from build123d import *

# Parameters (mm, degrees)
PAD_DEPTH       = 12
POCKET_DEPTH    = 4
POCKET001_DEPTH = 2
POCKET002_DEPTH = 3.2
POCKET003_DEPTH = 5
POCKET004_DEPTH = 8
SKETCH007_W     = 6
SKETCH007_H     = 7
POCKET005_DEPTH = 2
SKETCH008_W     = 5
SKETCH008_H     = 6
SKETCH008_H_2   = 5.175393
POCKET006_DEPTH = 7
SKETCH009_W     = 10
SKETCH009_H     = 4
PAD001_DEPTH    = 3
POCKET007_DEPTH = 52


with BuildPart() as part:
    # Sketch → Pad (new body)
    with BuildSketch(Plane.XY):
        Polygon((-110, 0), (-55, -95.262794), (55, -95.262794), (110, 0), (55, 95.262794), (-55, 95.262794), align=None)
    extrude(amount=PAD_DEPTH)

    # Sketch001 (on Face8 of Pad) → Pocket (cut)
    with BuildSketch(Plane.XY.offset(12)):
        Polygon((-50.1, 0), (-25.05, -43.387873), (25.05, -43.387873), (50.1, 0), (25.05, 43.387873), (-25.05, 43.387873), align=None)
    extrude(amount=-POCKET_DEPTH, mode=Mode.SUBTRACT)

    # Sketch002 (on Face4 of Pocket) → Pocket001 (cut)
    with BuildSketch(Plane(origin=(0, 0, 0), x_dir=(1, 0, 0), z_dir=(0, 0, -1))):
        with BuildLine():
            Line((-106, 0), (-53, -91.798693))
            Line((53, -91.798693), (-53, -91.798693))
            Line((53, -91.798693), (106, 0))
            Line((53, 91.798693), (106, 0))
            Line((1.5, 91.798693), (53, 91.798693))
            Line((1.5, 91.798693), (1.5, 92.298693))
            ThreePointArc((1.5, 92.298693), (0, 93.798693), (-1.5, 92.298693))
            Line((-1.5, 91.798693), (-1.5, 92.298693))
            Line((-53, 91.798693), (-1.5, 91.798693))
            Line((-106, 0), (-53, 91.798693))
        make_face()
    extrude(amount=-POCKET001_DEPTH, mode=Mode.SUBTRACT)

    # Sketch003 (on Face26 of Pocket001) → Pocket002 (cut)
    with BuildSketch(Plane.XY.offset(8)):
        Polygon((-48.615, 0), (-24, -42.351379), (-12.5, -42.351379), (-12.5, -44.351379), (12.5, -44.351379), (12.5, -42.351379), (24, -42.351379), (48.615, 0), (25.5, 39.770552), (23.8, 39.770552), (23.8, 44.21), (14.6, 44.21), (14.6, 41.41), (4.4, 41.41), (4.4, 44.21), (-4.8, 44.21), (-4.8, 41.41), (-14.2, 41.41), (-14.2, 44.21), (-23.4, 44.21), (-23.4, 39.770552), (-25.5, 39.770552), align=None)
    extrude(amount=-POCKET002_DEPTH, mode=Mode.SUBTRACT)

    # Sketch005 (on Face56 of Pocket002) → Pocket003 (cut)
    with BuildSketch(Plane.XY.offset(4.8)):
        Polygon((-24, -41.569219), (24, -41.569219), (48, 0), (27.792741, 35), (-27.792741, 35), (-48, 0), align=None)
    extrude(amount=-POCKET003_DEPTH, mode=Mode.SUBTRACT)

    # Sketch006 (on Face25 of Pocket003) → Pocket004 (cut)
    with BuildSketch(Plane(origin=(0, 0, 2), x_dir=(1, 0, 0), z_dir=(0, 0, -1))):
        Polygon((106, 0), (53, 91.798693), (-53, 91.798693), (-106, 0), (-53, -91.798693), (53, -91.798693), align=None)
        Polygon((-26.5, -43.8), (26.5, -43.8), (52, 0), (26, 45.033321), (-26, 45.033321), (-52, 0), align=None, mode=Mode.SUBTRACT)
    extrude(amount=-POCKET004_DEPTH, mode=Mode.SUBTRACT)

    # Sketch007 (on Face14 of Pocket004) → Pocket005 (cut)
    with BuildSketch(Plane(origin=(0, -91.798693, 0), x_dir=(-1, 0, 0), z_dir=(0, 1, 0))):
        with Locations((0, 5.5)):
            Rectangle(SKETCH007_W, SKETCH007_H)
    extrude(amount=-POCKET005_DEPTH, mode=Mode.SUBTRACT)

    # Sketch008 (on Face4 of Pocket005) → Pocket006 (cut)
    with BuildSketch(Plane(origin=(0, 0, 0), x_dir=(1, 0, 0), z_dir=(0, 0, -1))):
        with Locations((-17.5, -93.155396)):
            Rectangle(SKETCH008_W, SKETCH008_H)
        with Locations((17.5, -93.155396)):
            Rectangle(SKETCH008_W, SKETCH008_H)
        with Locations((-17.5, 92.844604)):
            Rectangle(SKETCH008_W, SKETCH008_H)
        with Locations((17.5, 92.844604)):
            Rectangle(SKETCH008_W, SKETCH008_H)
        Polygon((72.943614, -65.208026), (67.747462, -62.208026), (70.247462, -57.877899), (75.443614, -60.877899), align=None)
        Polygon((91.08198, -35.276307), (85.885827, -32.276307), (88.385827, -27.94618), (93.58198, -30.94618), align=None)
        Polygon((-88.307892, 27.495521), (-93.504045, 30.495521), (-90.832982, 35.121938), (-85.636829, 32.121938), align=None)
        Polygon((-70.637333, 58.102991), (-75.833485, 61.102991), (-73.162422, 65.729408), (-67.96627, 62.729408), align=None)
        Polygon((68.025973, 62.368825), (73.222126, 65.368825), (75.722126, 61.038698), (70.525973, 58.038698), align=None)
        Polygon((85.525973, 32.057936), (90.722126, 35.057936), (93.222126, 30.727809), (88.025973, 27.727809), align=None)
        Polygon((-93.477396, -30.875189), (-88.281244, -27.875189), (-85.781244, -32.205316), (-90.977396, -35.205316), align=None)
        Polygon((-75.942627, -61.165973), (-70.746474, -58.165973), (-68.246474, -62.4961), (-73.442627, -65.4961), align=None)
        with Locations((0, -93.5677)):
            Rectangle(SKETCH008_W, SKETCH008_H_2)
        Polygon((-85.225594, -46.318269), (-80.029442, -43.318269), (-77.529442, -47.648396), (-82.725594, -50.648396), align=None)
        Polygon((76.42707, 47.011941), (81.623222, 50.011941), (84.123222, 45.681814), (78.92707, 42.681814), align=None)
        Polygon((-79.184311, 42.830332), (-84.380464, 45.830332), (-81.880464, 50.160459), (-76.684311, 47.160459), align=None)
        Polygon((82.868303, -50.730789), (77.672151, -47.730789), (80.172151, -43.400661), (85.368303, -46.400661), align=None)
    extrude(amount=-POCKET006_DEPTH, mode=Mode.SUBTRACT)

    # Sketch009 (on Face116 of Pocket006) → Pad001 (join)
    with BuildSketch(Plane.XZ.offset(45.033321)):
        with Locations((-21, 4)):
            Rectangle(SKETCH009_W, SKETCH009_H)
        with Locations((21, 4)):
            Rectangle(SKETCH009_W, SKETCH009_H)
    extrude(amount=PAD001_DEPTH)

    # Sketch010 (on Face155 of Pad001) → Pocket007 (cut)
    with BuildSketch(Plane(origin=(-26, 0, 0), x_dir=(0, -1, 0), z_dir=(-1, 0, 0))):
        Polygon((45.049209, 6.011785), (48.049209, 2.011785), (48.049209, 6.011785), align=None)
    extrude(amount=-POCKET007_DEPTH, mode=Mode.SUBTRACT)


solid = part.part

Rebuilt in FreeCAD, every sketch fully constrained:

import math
import FreeCAD as App
import Part
import Sketcher
from FreeCAD import Vector
Q = App.Units.Quantity


def add_polygon(sketch, points):
    """Adds a closed chain of lines whose ends are joined by coincident constraints."""
    first, n = sketch.GeometryCount, len(points)
    for a, b in zip(points, points[1:] + points[:1]):
        sketch.addGeometry(Part.LineSegment(App.Vector(*a, 0), App.Vector(*b, 0)), False)
    for i in range(n):
        sketch.addConstraint(Sketcher.Constraint("Coincident", first + i, 2, first + (i + 1) % n, 1))

doc = App.newDocument("Part")
params = doc.addObject("Spreadsheet::Sheet", "Params")
for row, (alias, value) in enumerate([
    ("sketch1_width", "110 mm"),
    ("sketch1_length", "110 mm"),
    ("pad1_length", "12 mm"),
    ("sketch2_width", "50.1 mm"),
    ("sketch2_length", "50.1 mm"),
    ("pocket1_length", "4 mm"),
    ("sketch3_radius", "1.5 mm"),
    ("sketch3_width", "106 mm"),
    ("sketch3_length", "106 mm"),
    ("sketch3_height", "0.5 mm"),
    ("pocket2_length", "2 mm"),
    ("sketch4_width", "25 mm"),
    ("sketch4_height", "2 mm"),
    ("sketch4_length", "46 mm"),
    ("sketch4_width2", "11.5 mm"),
    ("sketch4_width3", "1.7 mm"),
    ("pocket3_length", "3.2 mm"),
    ("sketch5_width", "48 mm"),
    ("sketch5_length", "48 mm"),
    ("pocket4_length", "5 mm"),
    ("sketch6_width", "106 mm"),
    ("sketch6_width2", "53 mm"),
    ("sketch6_width3", "52 mm"),
    ("sketch6_length", "106 mm"),
    ("sketch6_length2", "52 mm"),
    ("pocket5_length", "8 mm"),
    ("sketch7_width", "6 mm"),
    ("sketch7_height", "7 mm"),
    ("pocket6_length", "2 mm"),
    ("sketch8_width", "5 mm"),
    ("sketch8_height", "6 mm"),
    ("sketch8_length", "6 mm"),
    ("sketch8_length2", "5 mm"),
    ("pocket7_length", "7 mm"),
    ("sketch9_width", "10 mm"),
    ("sketch9_height", "4 mm"),
    ("pad2_length", "3 mm"),
    ("sketch10_width", "3 mm"),
    ("sketch10_height", "4 mm"),
    ("pocket8_length", "52 mm"),
], start=1):
    params.set(f"A{row}", alias)
    params.set(f"B{row}", "=" + value)
    params.setAlias(f"B{row}", alias)

body = doc.addObject("PartDesign::Body", "Body")

sketch1 = body.newObject("Sketcher::SketchObject", "Sketch")
sketch1.AttachmentSupport = (doc.getObject("XY_Plane"), [""])
sketch1.MapMode = "FlatFace"
add_polygon(sketch1, [(-110, 0), (-55, -95), (55, -95), (110, 0), (55, 95), (-55, 95)])
sketch1.addConstraint([
    Sketcher.Constraint("Horizontal", 1),
    Sketcher.Constraint("Horizontal", 4),
    Sketcher.Constraint("Symmetric", 0, 2, 3, 2, -1, 1),
    Sketcher.Constraint("Symmetric", 2, 2, 5, 2, -1, 1),
    Sketcher.Constraint("PointOnObject", 2, 2, -1),
    Sketcher.Constraint("Parallel", 2, 5),
    Sketcher.Constraint("Vertical", 1, 2, 3, 2),
    Sketcher.Constraint("DistanceX", 1, 1, 1, 2, Q("110 mm")),
    Sketcher.Constraint("Angle", 0, Q("-60 deg")),
    Sketcher.Constraint("Distance", 0, Q("110 mm")),
])
sketch1.setExpression("Constraints[13]", "Params.sketch1_width")
sketch1.setExpression("Constraints[15]", "Params.sketch1_length")
pad1 = body.newObject("PartDesign::Pad", "Pad")
pad1.Profile = sketch1
pad1.setExpression("Length", "Params.pad1_length")

sketch2 = body.newObject("Sketcher::SketchObject", "Sketch001")
sketch2.AttachmentSupport = (doc.getObject("XY_Plane"), [""])
sketch2.MapMode = "FlatFace"
sketch2.AttachmentOffset = App.Placement(Vector(0, 0, 12), App.Rotation())
add_polygon(sketch2, [(-50, 0), (-25, -43), (25, -43), (50, 0), (25, 43), (-25, 43)])
sketch2.addConstraint([
    Sketcher.Constraint("Horizontal", 1),
    Sketcher.Constraint("Horizontal", 4),
    Sketcher.Constraint("Symmetric", 0, 2, 3, 2, -1, 1),
    Sketcher.Constraint("Symmetric", 2, 2, 5, 2, -1, 1),
    Sketcher.Constraint("PointOnObject", 2, 2, -1),
    Sketcher.Constraint("Parallel", 2, 5),
    Sketcher.Constraint("Vertical", 1, 2, 3, 2),
    Sketcher.Constraint("Angle", 0, Q("-60 deg")),
    Sketcher.Constraint("DistanceX", 1, 1, 1, 2, Q("50.1 mm")),
    Sketcher.Constraint("Distance", 0, Q("50.1 mm")),
])
sketch2.setExpression("Constraints[14]", "Params.sketch2_width")
sketch2.setExpression("Constraints[15]", "Params.sketch2_length")
pocket1 = body.newObject("PartDesign::Pocket", "Pocket")
pocket1.Profile = sketch2
pocket1.setExpression("Length", "Params.pocket1_length")

sketch3 = body.newObject("Sketcher::SketchObject", "Sketch002")
sketch3.AttachmentSupport = (doc.getObject("XY_Plane"), [""])
sketch3.MapMode = "FlatFace"
sketch3.addGeometry([
    Part.LineSegment(Vector(-106, 0, 0), Vector(-53, 91.8, 0)),
    Part.LineSegment(Vector(-53, 91.8, 0), Vector(53, 91.8, 0)),
    Part.LineSegment(Vector(53, 91.8, 0), Vector(106, 0, 0)),
    Part.LineSegment(Vector(106, 0, 0), Vector(53, -91.8, 0)),
    Part.LineSegment(Vector(53, -91.8, 0), Vector(1.5, -91.8, 0)),
    Part.LineSegment(Vector(1.5, -91.8, 0), Vector(1.5, -92.3, 0)),
    Part.ArcOfCircle(Part.Circle(Vector(0, -92.3, 0), Vector(0, 0, 1), 1.5), math.radians(180), math.radians(360)),
    Part.LineSegment(Vector(-1.5, -92.3, 0), Vector(-1.5, -91.8, 0)),
    Part.LineSegment(Vector(-1.5, -91.8, 0), Vector(-53, -91.8, 0)),
    Part.LineSegment(Vector(-53, -91.8, 0), Vector(-106, 0, 0)),
], False)
sketch3.addConstraint([
    Sketcher.Constraint("Coincident", 0, 2, 1, 1),
    Sketcher.Constraint("Coincident", 1, 2, 2, 1),
    Sketcher.Constraint("Coincident", 2, 2, 3, 1),
    Sketcher.Constraint("Coincident", 3, 2, 4, 1),
    Sketcher.Constraint("Coincident", 4, 2, 5, 1),
    Sketcher.Constraint("Tangent", 5, 2, 6, 2),
    Sketcher.Constraint("Tangent", 6, 1, 7, 1),
    Sketcher.Constraint("Coincident", 7, 2, 8, 1),
    Sketcher.Constraint("Coincident", 8, 2, 9, 1),
    Sketcher.Constraint("Coincident", 9, 2, 0, 1),
    Sketcher.Constraint("Horizontal", 1),
    Sketcher.Constraint("Horizontal", 4),
    Sketcher.Constraint("Vertical", 5),
    Sketcher.Constraint("Vertical", 7),
    Sketcher.Constraint("Horizontal", 8),
    Sketcher.Constraint("Symmetric", 0, 2, 3, 2, -1, 1),
    Sketcher.Constraint("Symmetric", 1, 2, 8, 2, -1, 1),
    Sketcher.Constraint("Symmetric", 2, 2, 9, 2, -1, 1),
    Sketcher.Constraint("PointOnObject", 6, 3, -2),
    Sketcher.Constraint("PointOnObject", 2, 2, -1),
    Sketcher.Constraint("Vertical", 1, 2, 3, 2),
    Sketcher.Constraint("Radius", 6, Q("1.5 mm")),
    Sketcher.Constraint("DistanceX", 1, 1, 1, 2, Q("106 mm")),
    Sketcher.Constraint("Angle", 0, Q("60 deg")),
    Sketcher.Constraint("Distance", 0, Q("106 mm")),
    Sketcher.Constraint("DistanceY", 5, 2, 5, 1, Q("0.5 mm")),
])
sketch3.setExpression("Constraints[21]", "Params.sketch3_radius")
sketch3.setExpression("Constraints[22]", "Params.sketch3_width")
sketch3.setExpression("Constraints[24]", "Params.sketch3_length")
sketch3.setExpression("Constraints[25]", "Params.sketch3_height")
pocket2 = body.newObject("PartDesign::Pocket", "Pocket001")
pocket2.Profile = sketch3
pocket2.setExpression("Length", "Params.pocket2_length")
pocket2.Reversed = True

sketch4 = body.newObject("Sketcher::SketchObject", "Sketch003")
sketch4.AttachmentSupport = (doc.getObject("XY_Plane"), [""])
sketch4.MapMode = "FlatFace"
sketch4.AttachmentOffset = App.Placement(Vector(0, 0, 8), App.Rotation())
add_polygon(sketch4, [(-48.6, 0), (-24, -42.4), (-12.5, -42.4), (-12.5, -44.4), (12.5, -44.4), (12.5, -42.4), (24, -42.4), (48.6, 0), (25.5, 39.8), (23.8, 39.8), (23.8, 44.2), (14.6, 44.2), (14.6, 41.4), (4.4, 41.4), (4.4, 44.2), (-4.8, 44.2), (-4.8, 41.4), (-14.2, 41.4), (-14.2, 44.2), (-23.4, 44.2), (-23.4, 39.8), (-25.5, 39.8)])
sketch4.addConstraint([
    Sketcher.Constraint("Horizontal", 1),
    Sketcher.Constraint("Vertical", 2),
    Sketcher.Constraint("Horizontal", 3),
    Sketcher.Constraint("Vertical", 4),
    Sketcher.Constraint("Horizontal", 5),
    Sketcher.Constraint("Horizontal", 8),
    Sketcher.Constraint("Vertical", 9),
    Sketcher.Constraint("Horizontal", 10),
    Sketcher.Constraint("Vertical", 11),
    Sketcher.Constraint("Horizontal", 12),
    Sketcher.Constraint("Vertical", 13),
    Sketcher.Constraint("Horizontal", 14),
    Sketcher.Constraint("Vertical", 15),
    Sketcher.Constraint("Horizontal", 16),
    Sketcher.Constraint("Vertical", 17),
    Sketcher.Constraint("Horizontal", 18),
    Sketcher.Constraint("Vertical", 19),
    Sketcher.Constraint("Horizontal", 20),
    Sketcher.Constraint("Symmetric", 6, 2, 21, 2, -1, 1),
    Sketcher.Constraint("Symmetric", 1, 2, 4, 2, -2),
    Sketcher.Constraint("Symmetric", 7, 2, 20, 2, -2),
    Sketcher.Constraint("PointOnObject", 6, 2, -1),
    Sketcher.Constraint("Parallel", 0, 7),
    Sketcher.Constraint("Parallel", 6, 21),
    Sketcher.Constraint("Horizontal", 10, 2, 13, 2),
    Sketcher.Constraint("Horizontal", 12, 2, 15, 2),
    Sketcher.Constraint("Horizontal", 14, 2, 17, 2),
    Sketcher.Constraint("Equal", 10, 14),
    Sketcher.Constraint("Equal", 14, 18),
    Sketcher.Constraint("DistanceX", 3, 1, 3, 2, Q("25 mm")),
    Sketcher.Constraint("DistanceY", 2, 2, 2, 1, Q("2 mm")),
    Sketcher.Constraint("Distance", 7, Q("46 mm")),
    Sketcher.Constraint("DistanceX", 1, 1, 1, 2, Q("11.5 mm")),
    Sketcher.Constraint("DistanceX", 8, 2, 8, 1, Q("1.7 mm")),
    Sketcher.Constraint("DistanceX", 10, 2, 10, 1, Q("9.2 mm")),
    Sketcher.Constraint("DistanceX", 12, 2, 12, 1, Q("10.2 mm")),
    Sketcher.Constraint("DistanceX", 16, 2, 16, 1, Q("9.4 mm")),
    Sketcher.Constraint("DistanceX", 20, 2, 20, 1, Q("2.1 mm")),
    Sketcher.Constraint("DistanceY", 11, 2, 11, 1, Q("2.8 mm")),
    Sketcher.Constraint("DistanceY", -1, 1, 9, 2, Q("44.21 mm")),
    Sketcher.Constraint("DistanceX", -1, 1, 6, 2, Q("48.615 mm")),
])
sketch4.setExpression("Constraints[51]", "Params.sketch4_width")
sketch4.setExpression("Constraints[52]", "Params.sketch4_height")
sketch4.setExpression("Constraints[53]", "Params.sketch4_length")
sketch4.setExpression("Constraints[54]", "Params.sketch4_width2")
sketch4.setExpression("Constraints[55]", "Params.sketch4_width3")
pocket3 = body.newObject("PartDesign::Pocket", "Pocket002")
pocket3.Profile = sketch4
pocket3.setExpression("Length", "Params.pocket3_length")

sketch5 = body.newObject("Sketcher::SketchObject", "Sketch004")
sketch5.AttachmentSupport = (doc.getObject("XY_Plane"), [""])
sketch5.MapMode = "FlatFace"
sketch5.AttachmentOffset = App.Placement(Vector(0, 0, 4.8), App.Rotation())
add_polygon(sketch5, [(-24, -42), (24, -42), (48, 0), (28, 35), (-28, 35), (-48, 0)])
sketch5.addConstraint([
    Sketcher.Constraint("Horizontal", 0),
    Sketcher.Constraint("Horizontal", 3),
    Sketcher.Constraint("Symmetric", 1, 2, 4, 2, -1, 1),
    Sketcher.Constraint("PointOnObject", 1, 2, -1),
    Sketcher.Constraint("Parallel", 1, 4),
    Sketcher.Constraint("Parallel", 2, 5),
    Sketcher.Constraint("Equal", 2, 4),
    Sketcher.Constraint("DistanceX", 0, 1, 0, 2, Q("48 mm")),
    Sketcher.Constraint("Angle", 1, Q("60 deg")),
    Sketcher.Constraint("Distance", 1, Q("48 mm")),
    Sketcher.Constraint("DistanceY", -1, 1, 2, 2, Q("35 mm")),
])
sketch5.setExpression("Constraints[13]", "Params.sketch5_width")
sketch5.setExpression("Constraints[15]", "Params.sketch5_length")
pocket4 = body.newObject("PartDesign::Pocket", "Pocket003")
pocket4.Profile = sketch5
pocket4.setExpression("Length", "Params.pocket4_length")

sketch6 = body.newObject("Sketcher::SketchObject", "Sketch005")
sketch6.AttachmentSupport = (doc.getObject("XY_Plane"), [""])
sketch6.MapMode = "FlatFace"
sketch6.AttachmentOffset = App.Placement(Vector(0, 0, 2), App.Rotation())
add_polygon(sketch6, [(106, 0), (53, -92), (-53, -92), (-106, 0), (-53, 92), (53, 92)])
add_polygon(sketch6, [(26, 44), (-26, 44), (-52, 0), (-26, -45), (26, -45), (52, 0)])
sketch6.addConstraint([
    Sketcher.Constraint("Horizontal", 1),
    Sketcher.Constraint("Horizontal", 4),
    Sketcher.Constraint("Horizontal", 6),
    Sketcher.Constraint("Horizontal", 9),
    Sketcher.Constraint("Symmetric", 0, 2, 3, 2, -1, 1),
    Sketcher.Constraint("Symmetric", 2, 2, 5, 2, -1, 1),
    Sketcher.Constraint("Symmetric", 7, 2, 10, 2, -1, 1),
    Sketcher.Constraint("PointOnObject", 2, 2, -1),
    Sketcher.Constraint("PointOnObject", 7, 2, -1),
    Sketcher.Constraint("Parallel", 2, 5),
    Sketcher.Constraint("Parallel", 5, 8),
    Sketcher.Constraint("Parallel", 3, 10),
    Sketcher.Constraint("Vertical", 1, 2, 3, 2),
    Sketcher.Constraint("Equal", 7, 11),
    Sketcher.Constraint("DistanceX", 1, 2, 1, 1, Q("106 mm")),
    Sketcher.Constraint("DistanceX", 6, 2, 6, 1, Q("53 mm")),
    Sketcher.Constraint("DistanceX", 9, 1, 9, 2, Q("52 mm")),
    Sketcher.Constraint("Angle", 0, Q("-120 deg")),
    Sketcher.Constraint("Distance", 0, Q("106 mm")),
    Sketcher.Constraint("Distance", 8, Q("52 mm")),
    Sketcher.Constraint("DistanceY", -1, 1, 6, 2, Q("43.8 mm")),
])
sketch6.setExpression("Constraints[26]", "Params.sketch6_width")
sketch6.setExpression("Constraints[27]", "Params.sketch6_width2")
sketch6.setExpression("Constraints[28]", "Params.sketch6_width3")
sketch6.setExpression("Constraints[30]", "Params.sketch6_length")
sketch6.setExpression("Constraints[31]", "Params.sketch6_length2")
pocket5 = body.newObject("PartDesign::Pocket", "Pocket004")
pocket5.Profile = sketch6
pocket5.setExpression("Length", "Params.pocket5_length")
pocket5.Reversed = True

sketch7 = body.newObject("Sketcher::SketchObject", "Sketch006")
sketch7.AttachmentSupport = (doc.getObject("XZ_Plane"), [""])
sketch7.MapMode = "FlatFace"
sketch7.AttachmentOffset = App.Placement(Vector(0, 0, 91.798693), App.Rotation())
add_polygon(sketch7, [(3, 9), (3, 2), (-3, 2), (-3, 9)])
sketch7.addConstraint([
    Sketcher.Constraint("Vertical", 0),
    Sketcher.Constraint("Horizontal", 1),
    Sketcher.Constraint("Vertical", 2),
    Sketcher.Constraint("Horizontal", 3),
    Sketcher.Constraint("DistanceX", 1, 2, 1, 1, Q("6 mm")),
    Sketcher.Constraint("DistanceY", 0, 2, 0, 1, Q("7 mm")),
    Sketcher.Constraint("DistanceX", -1, 1, 0, 2, Q("3 mm")),
    Sketcher.Constraint("DistanceY", -1, 1, 0, 2, Q("2 mm")),
])
sketch7.setExpression("Constraints[8]", "Params.sketch7_width")
sketch7.setExpression("Constraints[9]", "Params.sketch7_height")
pocket6 = body.newObject("PartDesign::Pocket", "Pocket005")
pocket6.Profile = sketch7
pocket6.setExpression("Length", "Params.pocket6_length")
pocket6.Reversed = True

sketch8 = body.newObject("Sketcher::SketchObject", "Sketch007")
sketch8.AttachmentSupport = (doc.getObject("XY_Plane"), [""])
sketch8.MapMode = "FlatFace"
add_polygon(sketch8, [(-20, 90.2), (-20, 96.2), (-15, 96.2), (-15, 90.2)])
add_polygon(sketch8, [(15, 90.2), (15, 96.2), (20, 96.2), (20, 90.2)])
add_polygon(sketch8, [(-20, -95.8), (-20, -89.8), (-15, -89.8), (-15, -95.8)])
add_polygon(sketch8, [(15, -95.8), (15, -89.8), (20, -89.8), (20, -95.8)])
add_polygon(sketch8, [(67.7, 62.2), (72.9, 65.2), (75.4, 60.9), (70.2, 57.9)])
add_polygon(sketch8, [(85.9, 32.3), (91.1, 35.3), (93.6, 30.9), (88.4, 27.9)])
add_polygon(sketch8, [(-93.5, -30.5), (-88.3, -27.5), (-85.6, -32.1), (-90.8, -35.1)])
add_polygon(sketch8, [(-75.8, -61.1), (-70.6, -58.1), (-68, -62.7), (-73.2, -65.7)])
add_polygon(sketch8, [(73.2, -65.4), (68, -62.4), (70.5, -58), (75.7, -61)])
add_polygon(sketch8, [(90.7, -35.1), (85.5, -32.1), (88, -27.7), (93.2, -30.7)])
add_polygon(sketch8, [(-88.3, 27.9), (-93.5, 30.9), (-91, 35.2), (-85.8, 32.2)])
add_polygon(sketch8, [(-70.7, 58.2), (-75.9, 61.2), (-73.4, 65.5), (-68.2, 62.5)])
add_polygon(sketch8, [(-2.5, 91), (-2.5, 96.2), (2.5, 96.2), (2.5, 91)])
add_polygon(sketch8, [(-80, 43.3), (-85.2, 46.3), (-82.7, 50.6), (-77.5, 47.6)])
add_polygon(sketch8, [(81.6, -50), (76.4, -47), (78.9, -42.7), (84.1, -45.7)])
add_polygon(sketch8, [(-84.4, -45.8), (-79.2, -42.8), (-76.7, -47.2), (-81.9, -50.2)])
add_polygon(sketch8, [(77.7, 47.7), (82.9, 50.7), (85.4, 46.4), (80.2, 43.4)])
sketch8.addConstraint([
    Sketcher.Constraint("Vertical", 0),
    Sketcher.Constraint("Horizontal", 1),
    Sketcher.Constraint("Vertical", 2),
    Sketcher.Constraint("Horizontal", 3),
    Sketcher.Constraint("Vertical", 4),
    Sketcher.Constraint("Horizontal", 5),
    Sketcher.Constraint("Vertical", 6),
    Sketcher.Constraint("Horizontal", 7),
    Sketcher.Constraint("Vertical", 8),
    Sketcher.Constraint("Horizontal", 9),
    Sketcher.Constraint("Vertical", 10),
    Sketcher.Constraint("Horizontal", 11),
    Sketcher.Constraint("Vertical", 12),
    Sketcher.Constraint("Horizontal", 13),
    Sketcher.Constraint("Vertical", 14),
    Sketcher.Constraint("Horizontal", 15),
    Sketcher.Constraint("Vertical", 48),
    Sketcher.Constraint("Horizontal", 49),
    Sketcher.Constraint("Vertical", 50),
    Sketcher.Constraint("Horizontal", 51),
    Sketcher.Constraint("Symmetric", 1, 2, 4, 2, -2),
    Sketcher.Constraint("Symmetric", 3, 2, 6, 2, -2),
    Sketcher.Constraint("Symmetric", 9, 2, 12, 2, -2),
    Sketcher.Constraint("Symmetric", 11, 2, 14, 2, -2),
    Sketcher.Constraint("Perpendicular", 16, 17),
    Sketcher.Constraint("Perpendicular", 17, 18),
    Sketcher.Constraint("Perpendicular", 18, 19),
    Sketcher.Constraint("Perpendicular", 19, 20),
    Sketcher.Constraint("Perpendicular", 20, 21),
    Sketcher.Constraint("Perpendicular", 21, 22),
    Sketcher.Constraint("Perpendicular", 22, 23),
    Sketcher.Constraint("Perpendicular", 23, 24),
    Sketcher.Constraint("Perpendicular", 24, 25),
    Sketcher.Constraint("Perpendicular", 25, 26),
    Sketcher.Constraint("Perpendicular", 26, 27),
    Sketcher.Constraint("Perpendicular", 27, 28),
    Sketcher.Constraint("Perpendicular", 28, 29),
    Sketcher.Constraint("Perpendicular", 29, 30),
    Sketcher.Constraint("Perpendicular", 30, 31),
    Sketcher.Constraint("Perpendicular", 32, 33),
    Sketcher.Constraint("Perpendicular", 33, 34),
    Sketcher.Constraint("Perpendicular", 34, 35),
    Sketcher.Constraint("Perpendicular", 35, 36),
    Sketcher.Constraint("Perpendicular", 36, 37),
    Sketcher.Constraint("Perpendicular", 37, 38),
    Sketcher.Constraint("Perpendicular", 38, 39),
    Sketcher.Constraint("Perpendicular", 39, 40),
    Sketcher.Constraint("Perpendicular", 40, 41),
    Sketcher.Constraint("Perpendicular", 41, 42),
    Sketcher.Constraint("Perpendicular", 42, 43),
    Sketcher.Constraint("Perpendicular", 43, 44),
    Sketcher.Constraint("Perpendicular", 44, 45),
    Sketcher.Constraint("Perpendicular", 45, 46),
    Sketcher.Constraint("Perpendicular", 46, 47),
    Sketcher.Constraint("Perpendicular", 47, 52),
    Sketcher.Constraint("Perpendicular", 52, 53),
    Sketcher.Constraint("Perpendicular", 53, 54),
    Sketcher.Constraint("Perpendicular", 54, 55),
    Sketcher.Constraint("Perpendicular", 55, 56),
    Sketcher.Constraint("Perpendicular", 56, 57),
    Sketcher.Constraint("Perpendicular", 57, 58),
    Sketcher.Constraint("Perpendicular", 58, 59),
    Sketcher.Constraint("Perpendicular", 31, 60),
    Sketcher.Constraint("Perpendicular", 60, 61),
    Sketcher.Constraint("Perpendicular", 61, 62),
    Sketcher.Constraint("Perpendicular", 62, 63),
    Sketcher.Constraint("Perpendicular", 63, 64),
    Sketcher.Constraint("Perpendicular", 64, 65),
    Sketcher.Constraint("Perpendicular", 65, 66),
    Sketcher.Constraint("Perpendicular", 66, 67),
    Sketcher.Constraint("Horizontal", 5, 2, 48, 2),
    Sketcher.Constraint("Vertical", 3, 2, 8, 2),
    Sketcher.Constraint("Vertical", 2, 2, 9, 2),
    Sketcher.Constraint("Equal", 15, 49),
    Sketcher.Constraint("Equal", 6, 8),
    Sketcher.Constraint("Equal", 18, 20),
    Sketcher.Constraint("Equal", 19, 21),
    Sketcher.Constraint("Equal", 22, 24),
    Sketcher.Constraint("Equal", 26, 28),
    Sketcher.Constraint("Equal", 27, 29),
    Sketcher.Constraint("Equal", 30, 32),
    Sketcher.Constraint("Equal", 23, 33),
    Sketcher.Constraint("Equal", 34, 36),
    Sketcher.Constraint("Equal", 35, 37),
    Sketcher.Constraint("Equal", 38, 40),
    Sketcher.Constraint("Equal", 39, 41),
    Sketcher.Constraint("Equal", 42, 44),
    Sketcher.Constraint("Equal", 43, 45),
    Sketcher.Constraint("Equal", 46, 52),
    Sketcher.Constraint("Equal", 47, 53),
    Sketcher.Constraint("Equal", 54, 56),
    Sketcher.Constraint("Equal", 55, 57),
    Sketcher.Constraint("Equal", 58, 60),
    Sketcher.Constraint("Equal", 59, 61),
    Sketcher.Constraint("Equal", 62, 64),
    Sketcher.Constraint("Equal", 63, 65),
    Sketcher.Constraint("DistanceX", 1, 1, 1, 2, Q("5 mm")),
    Sketcher.Constraint("DistanceY", 0, 1, 0, 2, Q("6 mm")),
    Sketcher.Constraint("Angle", 16, Q("30.000002 deg")),
    Sketcher.Constraint("Angle", 32, Q("150.000003 deg")),
    Sketcher.Constraint("Distance", 16, Q("6 mm")),
    Sketcher.Constraint("Distance", 17, Q("5 mm")),
    Sketcher.Constraint("DistanceX", 0, 2, -1, 1, Q("20 mm")),
    Sketcher.Constraint("DistanceX", 48, 2, -1, 1, Q("2.5 mm")),
    Sketcher.Constraint("DistanceY", -1, 1, 17, 2, Q("60.877899 mm")),
    Sketcher.Constraint("DistanceY", -1, 1, 45, 2, Q("65.4961 mm")),
    Sketcher.Constraint("DistanceY", 48, 1, 48, 2, Q("5.175393 mm")),
    Sketcher.Constraint("DistanceX", -1, 1, 18, 2, Q("70.247462 mm")),
    Sketcher.Constraint("DistanceX", -1, 1, 20, 2, Q("91.08198 mm")),
    Sketcher.Constraint("DistanceY", -1, 1, 21, 2, Q("30.94618 mm")),
    Sketcher.Constraint("DistanceX", 24, 2, -1, 1, Q("88.307892 mm")),
    Sketcher.Constraint("DistanceY", 24, 2, -1, 1, Q("27.495521 mm")),
    Sketcher.Constraint("DistanceX", 25, 2, -1, 1, Q("85.636829 mm")),
    Sketcher.Constraint("DistanceY", 28, 2, -1, 1, Q("58.102991 mm")),
    Sketcher.Constraint("DistanceX", 29, 2, -1, 1, Q("67.96627 mm")),
    Sketcher.Constraint("DistanceY", 37, 2, -1, 1, Q("27.727809 mm")),
    Sketcher.Constraint("DistanceY", -1, 1, 40, 2, Q("30.875189 mm")),
    Sketcher.Constraint("DistanceY", -1, 1, 52, 2, Q("46.318269 mm")),
    Sketcher.Constraint("DistanceX", -1, 1, 56, 2, Q("76.42707 mm")),
    Sketcher.Constraint("DistanceY", 56, 2, -1, 1, Q("47.011941 mm")),
    Sketcher.Constraint("DistanceX", 60, 2, -1, 1, Q("79.184311 mm")),
    Sketcher.Constraint("DistanceY", 61, 2, -1, 1, Q("47.160459 mm")),
    Sketcher.Constraint("DistanceY", -1, 1, 64, 2, Q("50.730789 mm")),
    Sketcher.Constraint("DistanceX", -1, 1, 66, 2, Q("80.172151 mm")),
    Sketcher.Constraint("DistanceY", -1, 1, 0, 2, Q("96.155396 mm")),
    Sketcher.Constraint("DistanceY", 8, 2, -1, 1, Q("89.844604 mm")),
    Sketcher.Constraint("DistanceX", -1, 1, 32, 2, Q("68.025973 mm")),
    Sketcher.Constraint("DistanceY", 32, 2, -1, 1, Q("62.368825 mm")),
    Sketcher.Constraint("DistanceX", -1, 1, 36, 2, Q("85.525973 mm")),
    Sketcher.Constraint("DistanceX", 40, 2, -1, 1, Q("93.477396 mm")),
    Sketcher.Constraint("DistanceX", 44, 2, -1, 1, Q("75.942627 mm")),
    Sketcher.Constraint("DistanceX", 52, 2, -1, 1, Q("85.225594 mm")),
])
sketch8.setExpression("Constraints[164]", "Params.sketch8_width")
sketch8.setExpression("Constraints[165]", "Params.sketch8_height")
sketch8.setExpression("Constraints[168]", "Params.sketch8_length")
sketch8.setExpression("Constraints[169]", "Params.sketch8_length2")
pocket7 = body.newObject("PartDesign::Pocket", "Pocket006")
pocket7.Profile = sketch8
pocket7.setExpression("Length", "Params.pocket7_length")
pocket7.Reversed = True

sketch9 = body.newObject("Sketcher::SketchObject", "Sketch008")
sketch9.AttachmentSupport = (doc.getObject("XZ_Plane"), [""])
sketch9.MapMode = "FlatFace"
sketch9.AttachmentOffset = App.Placement(Vector(0, 0, 45.033321), App.Rotation())
add_polygon(sketch9, [(-26, 6), (-26, 2), (-16, 2), (-16, 6)])
add_polygon(sketch9, [(16, 6), (16, 2), (26, 2), (26, 6)])
sketch9.addConstraint([
    Sketcher.Constraint("Vertical", 0),
    Sketcher.Constraint("Horizontal", 1),
    Sketcher.Constraint("Vertical", 2),
    Sketcher.Constraint("Horizontal", 3),
    Sketcher.Constraint("Vertical", 4),
    Sketcher.Constraint("Horizontal", 5),
    Sketcher.Constraint("Vertical", 6),
    Sketcher.Constraint("Horizontal", 7),
    Sketcher.Constraint("Symmetric", 1, 2, 4, 2, -2),
    Sketcher.Constraint("Symmetric", 3, 2, 6, 2, -2),
    Sketcher.Constraint("DistanceX", 1, 1, 1, 2, Q("10 mm")),
    Sketcher.Constraint("DistanceY", 0, 2, 0, 1, Q("4 mm")),
    Sketcher.Constraint("DistanceX", 0, 2, -1, 1, Q("26 mm")),
    Sketcher.Constraint("DistanceY", -1, 1, 0, 2, Q("2 mm")),
])
sketch9.setExpression("Constraints[18]", "Params.sketch9_width")
sketch9.setExpression("Constraints[19]", "Params.sketch9_height")
pad2 = body.newObject("PartDesign::Pad", "Pad001")
pad2.Profile = sketch9
pad2.setExpression("Length", "Params.pad2_length")

sketch10 = body.newObject("Sketcher::SketchObject", "Sketch009")
sketch10.AttachmentSupport = (doc.getObject("YZ_Plane"), [""])
sketch10.MapMode = "FlatFace"
sketch10.AttachmentOffset = App.Placement(Vector(0, 0, -26), App.Rotation())
add_polygon(sketch10, [(-45, 6), (-48, 2), (-48, 6)])
sketch10.addConstraint([
    Sketcher.Constraint("Vertical", 1),
    Sketcher.Constraint("Horizontal", 2),
    Sketcher.Constraint("DistanceX", 2, 1, 2, 2, Q("3 mm")),
    Sketcher.Constraint("DistanceY", 1, 1, 1, 2, Q("4 mm")),
    Sketcher.Constraint("DistanceX", 0, 2, -1, 1, Q("48.049209 mm")),
    Sketcher.Constraint("DistanceY", -1, 1, 0, 2, Q("2.011785 mm")),
])
sketch10.setExpression("Constraints[5]", "Params.sketch10_width")
sketch10.setExpression("Constraints[6]", "Params.sketch10_height")
pocket8 = body.newObject("PartDesign::Pocket", "Pocket007")
pocket8.Profile = sketch10
pocket8.setExpression("Length", "Params.pocket8_length")
pocket8.Reversed = True

doc.recompute()
